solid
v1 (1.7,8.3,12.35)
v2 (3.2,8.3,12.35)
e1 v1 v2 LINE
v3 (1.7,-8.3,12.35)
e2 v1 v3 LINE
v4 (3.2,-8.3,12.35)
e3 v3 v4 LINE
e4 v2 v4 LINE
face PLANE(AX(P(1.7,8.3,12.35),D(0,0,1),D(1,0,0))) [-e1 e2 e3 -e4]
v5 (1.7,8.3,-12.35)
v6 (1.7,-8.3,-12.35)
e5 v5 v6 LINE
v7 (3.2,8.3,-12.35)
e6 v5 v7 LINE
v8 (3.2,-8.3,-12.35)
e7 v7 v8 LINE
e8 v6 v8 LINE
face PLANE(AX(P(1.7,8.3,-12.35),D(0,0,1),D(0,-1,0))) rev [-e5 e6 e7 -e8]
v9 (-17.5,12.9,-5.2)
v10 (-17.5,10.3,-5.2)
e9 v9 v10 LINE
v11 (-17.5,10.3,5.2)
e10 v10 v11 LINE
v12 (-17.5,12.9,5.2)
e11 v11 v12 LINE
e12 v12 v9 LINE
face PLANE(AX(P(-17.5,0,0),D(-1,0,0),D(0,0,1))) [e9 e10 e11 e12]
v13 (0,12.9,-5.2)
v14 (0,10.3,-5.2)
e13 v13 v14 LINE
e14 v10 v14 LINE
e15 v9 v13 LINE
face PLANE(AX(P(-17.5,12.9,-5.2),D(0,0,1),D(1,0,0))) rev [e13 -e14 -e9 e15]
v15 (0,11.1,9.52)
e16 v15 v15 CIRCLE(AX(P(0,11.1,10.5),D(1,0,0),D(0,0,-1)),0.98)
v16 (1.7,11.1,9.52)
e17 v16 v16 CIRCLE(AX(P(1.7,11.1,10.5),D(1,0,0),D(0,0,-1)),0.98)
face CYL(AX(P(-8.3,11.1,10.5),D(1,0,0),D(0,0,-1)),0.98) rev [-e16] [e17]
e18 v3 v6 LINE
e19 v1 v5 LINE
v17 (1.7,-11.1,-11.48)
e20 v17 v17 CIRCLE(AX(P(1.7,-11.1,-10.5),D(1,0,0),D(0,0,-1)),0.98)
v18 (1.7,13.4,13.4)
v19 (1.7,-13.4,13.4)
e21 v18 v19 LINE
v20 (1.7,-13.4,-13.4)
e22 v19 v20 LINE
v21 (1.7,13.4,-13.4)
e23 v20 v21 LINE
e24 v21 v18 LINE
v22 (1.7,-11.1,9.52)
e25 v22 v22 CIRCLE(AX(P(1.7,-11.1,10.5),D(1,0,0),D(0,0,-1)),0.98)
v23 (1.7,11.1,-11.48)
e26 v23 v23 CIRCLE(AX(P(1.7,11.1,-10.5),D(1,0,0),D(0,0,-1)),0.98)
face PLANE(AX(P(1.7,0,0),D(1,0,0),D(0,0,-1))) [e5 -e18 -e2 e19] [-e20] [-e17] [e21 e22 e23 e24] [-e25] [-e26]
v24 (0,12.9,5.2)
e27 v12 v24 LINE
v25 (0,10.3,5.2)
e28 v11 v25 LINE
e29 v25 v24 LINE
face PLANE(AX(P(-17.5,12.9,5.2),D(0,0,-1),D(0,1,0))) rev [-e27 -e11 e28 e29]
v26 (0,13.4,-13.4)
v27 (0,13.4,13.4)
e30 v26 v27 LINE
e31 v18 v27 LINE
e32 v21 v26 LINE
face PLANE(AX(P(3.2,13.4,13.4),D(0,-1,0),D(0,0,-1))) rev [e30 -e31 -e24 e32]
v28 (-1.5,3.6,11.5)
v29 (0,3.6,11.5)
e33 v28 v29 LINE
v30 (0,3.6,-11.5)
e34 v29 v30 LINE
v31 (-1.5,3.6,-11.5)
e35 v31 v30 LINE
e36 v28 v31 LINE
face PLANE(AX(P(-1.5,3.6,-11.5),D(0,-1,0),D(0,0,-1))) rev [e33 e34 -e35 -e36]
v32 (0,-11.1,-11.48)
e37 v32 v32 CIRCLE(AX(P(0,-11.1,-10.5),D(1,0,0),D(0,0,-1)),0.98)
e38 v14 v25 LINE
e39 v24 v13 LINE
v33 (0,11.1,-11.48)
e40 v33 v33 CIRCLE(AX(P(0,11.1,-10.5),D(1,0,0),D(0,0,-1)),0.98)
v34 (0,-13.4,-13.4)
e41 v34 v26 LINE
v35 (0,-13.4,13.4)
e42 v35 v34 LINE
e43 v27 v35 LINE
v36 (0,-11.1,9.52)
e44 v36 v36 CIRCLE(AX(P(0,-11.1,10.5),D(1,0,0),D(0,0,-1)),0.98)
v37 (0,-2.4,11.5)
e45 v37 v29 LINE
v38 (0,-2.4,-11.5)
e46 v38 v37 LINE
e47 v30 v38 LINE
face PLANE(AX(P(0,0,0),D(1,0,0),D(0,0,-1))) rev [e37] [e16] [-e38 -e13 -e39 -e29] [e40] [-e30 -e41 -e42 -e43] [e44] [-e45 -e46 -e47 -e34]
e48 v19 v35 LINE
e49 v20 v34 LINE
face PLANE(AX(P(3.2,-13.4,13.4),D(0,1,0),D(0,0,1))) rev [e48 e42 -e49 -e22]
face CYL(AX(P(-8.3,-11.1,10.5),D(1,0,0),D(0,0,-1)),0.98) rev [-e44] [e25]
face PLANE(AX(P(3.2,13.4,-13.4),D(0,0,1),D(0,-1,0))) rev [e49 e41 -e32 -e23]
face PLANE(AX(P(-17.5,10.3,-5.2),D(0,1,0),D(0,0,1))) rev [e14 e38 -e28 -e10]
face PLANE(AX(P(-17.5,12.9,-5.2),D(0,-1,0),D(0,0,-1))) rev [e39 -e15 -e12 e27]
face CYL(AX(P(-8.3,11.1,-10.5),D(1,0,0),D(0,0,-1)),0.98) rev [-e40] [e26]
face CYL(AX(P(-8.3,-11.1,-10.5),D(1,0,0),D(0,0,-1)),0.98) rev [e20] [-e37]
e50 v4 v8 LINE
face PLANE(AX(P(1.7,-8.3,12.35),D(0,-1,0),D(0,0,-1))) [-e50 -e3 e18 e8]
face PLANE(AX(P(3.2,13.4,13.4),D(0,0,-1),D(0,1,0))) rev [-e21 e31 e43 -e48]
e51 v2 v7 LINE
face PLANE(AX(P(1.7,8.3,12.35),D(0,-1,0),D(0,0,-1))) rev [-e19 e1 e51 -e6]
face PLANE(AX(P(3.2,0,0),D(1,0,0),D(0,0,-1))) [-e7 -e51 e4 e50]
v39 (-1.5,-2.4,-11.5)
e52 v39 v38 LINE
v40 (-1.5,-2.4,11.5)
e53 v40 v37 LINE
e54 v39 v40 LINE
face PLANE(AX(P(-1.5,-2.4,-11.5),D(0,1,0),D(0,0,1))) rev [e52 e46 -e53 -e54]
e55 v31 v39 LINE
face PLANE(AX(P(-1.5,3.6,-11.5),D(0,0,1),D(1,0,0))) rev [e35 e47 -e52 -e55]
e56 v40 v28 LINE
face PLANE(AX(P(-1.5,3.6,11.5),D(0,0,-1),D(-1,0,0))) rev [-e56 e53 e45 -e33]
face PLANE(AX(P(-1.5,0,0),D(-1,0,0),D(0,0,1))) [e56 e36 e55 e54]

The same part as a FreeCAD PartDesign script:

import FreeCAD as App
import Part
import Sketcher

V = App.Vector
Q = App.Units.Quantity


def add_polygon(sketch, points):
    """Adds a closed chain of lines whose ends are joined by coincident constraints."""
    first, n = sketch.GeometryCount, len(points)
    for a, b in zip(points, points[1:] + points[:1]):
        sketch.addGeometry(Part.LineSegment(App.Vector(*a, 0), App.Vector(*b, 0)), False)
    for i in range(n):
        sketch.addConstraint(Sketcher.Constraint("Coincident", first + i, 2, first + (i + 1) % n, 1))

doc = App.newDocument("Part")
body = doc.addObject("PartDesign::Body", "Body")

# Sketch on YZ plane
sketch1 = body.newObject("Sketcher::SketchObject", "Sketch")
sketch1.AttachmentSupport = (doc.getObject("YZ_Plane"), [""])
sketch1.MapMode = "FlatFace"
add_polygon(sketch1, [(13, 13), (-13, 13), (-13, -13), (13, -13)])  # lines 0-3
sketch1.addConstraint([
    Sketcher.Constraint("Horizontal", 0),
    Sketcher.Constraint("Vertical", 1),
    Sketcher.Constraint("Horizontal", 2),
    Sketcher.Constraint("Vertical", 3),
    Sketcher.Constraint("Symmetric", 0, 2, 2, 2, -1, 1),
    Sketcher.Constraint("Equal", 2, 1),
    Sketcher.Constraint("DistanceX", 0, 2, 0, 1, Q("26.8 mm")),
])
pad1 = body.newObject("PartDesign::Pad", "Pad")
pad1.Profile = sketch1
pad1.Length = 3.2

# Sketch on YZ plane
sketch2 = body.newObject("Sketcher::SketchObject", "Sketch001")
sketch2.AttachmentSupport = (doc.getObject("YZ_Plane"), [""])
sketch2.MapMode = "FlatFace"
sketch2.AttachmentOffset = App.Placement(V(0, 0, 3.2), App.Rotation())
add_polygon(sketch2, [(13, 13), (-13, 13), (-13, -13), (13, -13)])  # lines 0-3
add_polygon(sketch2, [(-8, -12), (-8, 12), (8, 12), (8, -12)])  # lines 4-7
sketch2.addConstraint([
    Sketcher.Constraint("Horizontal", 0),
    Sketcher.Constraint("Vertical", 1),
    Sketcher.Constraint("Horizontal", 2),
    Sketcher.Constraint("Vertical", 3),
    Sketcher.Constraint("Vertical", 4),
    Sketcher.Constraint("Horizontal", 5),
    Sketcher.Constraint("Vertical", 6),
    Sketcher.Constraint("Horizontal", 7),
    Sketcher.Constraint("Symmetric", 0, 2, 2, 2, -1, 1),
    Sketcher.Constraint("Symmetric", 4, 2, 6, 2, -1, 1),
    Sketcher.Constraint("Equal", 2, 1),
    Sketcher.Constraint("DistanceX", 0, 2, 0, 1, Q("26.8 mm")),
    Sketcher.Constraint("DistanceX", 5, 1, 5, 2, Q("16.6 mm")),
    Sketcher.Constraint("DistanceY", 4, 1, 4, 2, Q("24.7 mm")),
])
pocket1 = body.newObject("PartDesign::Pocket", "Pocket")
pocket1.Profile = sketch2
pocket1.Length = 1.5

# Sketch on YZ plane
sketch3 = body.newObject("Sketcher::SketchObject", "Sketch002")
sketch3.AttachmentSupport = (doc.getObject("YZ_Plane"), [""])
sketch3.MapMode = "FlatFace"
add_polygon(sketch3, [(12.9, -5.2), (10.3, -5.2), (10.3, 5.2), (12.9, 5.2)])  # lines 0-3
sketch3.addConstraint([
    Sketcher.Constraint("Horizontal", 0),
    Sketcher.Constraint("Vertical", 1),
    Sketcher.Constraint("Horizontal", 2),
    Sketcher.Constraint("Vertical", 3),
    Sketcher.Constraint("DistanceX", 0, 2, 0, 1, Q("2.6 mm")),
    Sketcher.Constraint("DistanceY", 1, 1, 1, 2, Q("10.4 mm")),
    Sketcher.Constraint("DistanceX", -1, 1, 0, 2, Q("10.3 mm")),
    Sketcher.Constraint("DistanceY", 0, 2, -1, 1, Q("5.2 mm")),
])
pad2 = body.newObject("PartDesign::Pad", "Pad001")
pad2.Profile = sketch3
pad2.Length = 17.5
pad2.Reversed = True

# Sketch on YZ plane
sketch4 = body.newObject("Sketcher::SketchObject", "Sketch003")
sketch4.AttachmentSupport = (doc.getObject("YZ_Plane"), [""])
sketch4.MapMode = "FlatFace"
add_polygon(sketch4, [(4, -12), (-2, -12), (-2, 12), (4, 12)])  # lines 0-3
sketch4.addConstraint([
    Sketcher.Constraint("Horizontal", 0),
    Sketcher.Constraint("Vertical", 1),
    Sketcher.Constraint("Horizontal", 2),
    Sketcher.Constraint("Vertical", 3),
    Sketcher.Constraint("DistanceX", 0, 2, 0, 1, Q("6 mm")),
    Sketcher.Constraint("DistanceY", 1, 1, 1, 2, Q("23 mm")),
    Sketcher.Constraint("DistanceX", 0, 2, -1, 1, Q("2.4 mm")),
    Sketcher.Constraint("DistanceY", 0, 2, -1, 1, Q("11.5 mm")),
])
pad3 = body.newObject("PartDesign::Pad", "Pad002")
pad3.Profile = sketch4
pad3.Length = 1.5
pad3.Reversed = True

# Sketch on YZ plane
sketch5 = body.newObject("Sketcher::SketchObject", "Sketch004")
sketch5.AttachmentSupport = (doc.getObject("YZ_Plane"), [""])
sketch5.MapMode = "FlatFace"
sketch5.AttachmentOffset = App.Placement(V(0, 0, 1.7), App.Rotation())
sketch5.addGeometry([
    Part.Circle(V(11.1, 10.5, 0), V(0, 0, 1), 1),
    Part.Circle(V(11.1, -10.5, 0), V(0, 0, 1), 1),
    Part.Circle(V(-11.1, -10.5, 0), V(0, 0, 1), 1),
    Part.Circle(V(-11.1, 10.5, 0), V(0, 0, 1), 1),
], False)
sketch5.addConstraint([
    Sketcher.Constraint("Equal", 0, 1),
    Sketcher.Constraint("Equal", 1, 2),
    Sketcher.Constraint("Equal", 2, 3),
    Sketcher.Constraint("Symmetric", 0, 3, 2, 3, -1, 1),
    Sketcher.Constraint("Symmetric", 1, 3, 3, 3, -1, 1),
    Sketcher.Constraint("Symmetric", 1, 3, 2, 3, -2),
    Sketcher.Constraint("Diameter", 0, Q("1.96 mm")),
    Sketcher.Constraint("DistanceY", 1, 3, 0, 3, Q("21 mm")),
    Sketcher.Constraint("DistanceX", -1, 1, 0, 3, Q("11.1 mm")),
])
pocket2 = body.newObject("PartDesign::Pocket", "Pocket001")
pocket2.Profile = sketch5
pocket2.Length = 10

doc.recompute()
